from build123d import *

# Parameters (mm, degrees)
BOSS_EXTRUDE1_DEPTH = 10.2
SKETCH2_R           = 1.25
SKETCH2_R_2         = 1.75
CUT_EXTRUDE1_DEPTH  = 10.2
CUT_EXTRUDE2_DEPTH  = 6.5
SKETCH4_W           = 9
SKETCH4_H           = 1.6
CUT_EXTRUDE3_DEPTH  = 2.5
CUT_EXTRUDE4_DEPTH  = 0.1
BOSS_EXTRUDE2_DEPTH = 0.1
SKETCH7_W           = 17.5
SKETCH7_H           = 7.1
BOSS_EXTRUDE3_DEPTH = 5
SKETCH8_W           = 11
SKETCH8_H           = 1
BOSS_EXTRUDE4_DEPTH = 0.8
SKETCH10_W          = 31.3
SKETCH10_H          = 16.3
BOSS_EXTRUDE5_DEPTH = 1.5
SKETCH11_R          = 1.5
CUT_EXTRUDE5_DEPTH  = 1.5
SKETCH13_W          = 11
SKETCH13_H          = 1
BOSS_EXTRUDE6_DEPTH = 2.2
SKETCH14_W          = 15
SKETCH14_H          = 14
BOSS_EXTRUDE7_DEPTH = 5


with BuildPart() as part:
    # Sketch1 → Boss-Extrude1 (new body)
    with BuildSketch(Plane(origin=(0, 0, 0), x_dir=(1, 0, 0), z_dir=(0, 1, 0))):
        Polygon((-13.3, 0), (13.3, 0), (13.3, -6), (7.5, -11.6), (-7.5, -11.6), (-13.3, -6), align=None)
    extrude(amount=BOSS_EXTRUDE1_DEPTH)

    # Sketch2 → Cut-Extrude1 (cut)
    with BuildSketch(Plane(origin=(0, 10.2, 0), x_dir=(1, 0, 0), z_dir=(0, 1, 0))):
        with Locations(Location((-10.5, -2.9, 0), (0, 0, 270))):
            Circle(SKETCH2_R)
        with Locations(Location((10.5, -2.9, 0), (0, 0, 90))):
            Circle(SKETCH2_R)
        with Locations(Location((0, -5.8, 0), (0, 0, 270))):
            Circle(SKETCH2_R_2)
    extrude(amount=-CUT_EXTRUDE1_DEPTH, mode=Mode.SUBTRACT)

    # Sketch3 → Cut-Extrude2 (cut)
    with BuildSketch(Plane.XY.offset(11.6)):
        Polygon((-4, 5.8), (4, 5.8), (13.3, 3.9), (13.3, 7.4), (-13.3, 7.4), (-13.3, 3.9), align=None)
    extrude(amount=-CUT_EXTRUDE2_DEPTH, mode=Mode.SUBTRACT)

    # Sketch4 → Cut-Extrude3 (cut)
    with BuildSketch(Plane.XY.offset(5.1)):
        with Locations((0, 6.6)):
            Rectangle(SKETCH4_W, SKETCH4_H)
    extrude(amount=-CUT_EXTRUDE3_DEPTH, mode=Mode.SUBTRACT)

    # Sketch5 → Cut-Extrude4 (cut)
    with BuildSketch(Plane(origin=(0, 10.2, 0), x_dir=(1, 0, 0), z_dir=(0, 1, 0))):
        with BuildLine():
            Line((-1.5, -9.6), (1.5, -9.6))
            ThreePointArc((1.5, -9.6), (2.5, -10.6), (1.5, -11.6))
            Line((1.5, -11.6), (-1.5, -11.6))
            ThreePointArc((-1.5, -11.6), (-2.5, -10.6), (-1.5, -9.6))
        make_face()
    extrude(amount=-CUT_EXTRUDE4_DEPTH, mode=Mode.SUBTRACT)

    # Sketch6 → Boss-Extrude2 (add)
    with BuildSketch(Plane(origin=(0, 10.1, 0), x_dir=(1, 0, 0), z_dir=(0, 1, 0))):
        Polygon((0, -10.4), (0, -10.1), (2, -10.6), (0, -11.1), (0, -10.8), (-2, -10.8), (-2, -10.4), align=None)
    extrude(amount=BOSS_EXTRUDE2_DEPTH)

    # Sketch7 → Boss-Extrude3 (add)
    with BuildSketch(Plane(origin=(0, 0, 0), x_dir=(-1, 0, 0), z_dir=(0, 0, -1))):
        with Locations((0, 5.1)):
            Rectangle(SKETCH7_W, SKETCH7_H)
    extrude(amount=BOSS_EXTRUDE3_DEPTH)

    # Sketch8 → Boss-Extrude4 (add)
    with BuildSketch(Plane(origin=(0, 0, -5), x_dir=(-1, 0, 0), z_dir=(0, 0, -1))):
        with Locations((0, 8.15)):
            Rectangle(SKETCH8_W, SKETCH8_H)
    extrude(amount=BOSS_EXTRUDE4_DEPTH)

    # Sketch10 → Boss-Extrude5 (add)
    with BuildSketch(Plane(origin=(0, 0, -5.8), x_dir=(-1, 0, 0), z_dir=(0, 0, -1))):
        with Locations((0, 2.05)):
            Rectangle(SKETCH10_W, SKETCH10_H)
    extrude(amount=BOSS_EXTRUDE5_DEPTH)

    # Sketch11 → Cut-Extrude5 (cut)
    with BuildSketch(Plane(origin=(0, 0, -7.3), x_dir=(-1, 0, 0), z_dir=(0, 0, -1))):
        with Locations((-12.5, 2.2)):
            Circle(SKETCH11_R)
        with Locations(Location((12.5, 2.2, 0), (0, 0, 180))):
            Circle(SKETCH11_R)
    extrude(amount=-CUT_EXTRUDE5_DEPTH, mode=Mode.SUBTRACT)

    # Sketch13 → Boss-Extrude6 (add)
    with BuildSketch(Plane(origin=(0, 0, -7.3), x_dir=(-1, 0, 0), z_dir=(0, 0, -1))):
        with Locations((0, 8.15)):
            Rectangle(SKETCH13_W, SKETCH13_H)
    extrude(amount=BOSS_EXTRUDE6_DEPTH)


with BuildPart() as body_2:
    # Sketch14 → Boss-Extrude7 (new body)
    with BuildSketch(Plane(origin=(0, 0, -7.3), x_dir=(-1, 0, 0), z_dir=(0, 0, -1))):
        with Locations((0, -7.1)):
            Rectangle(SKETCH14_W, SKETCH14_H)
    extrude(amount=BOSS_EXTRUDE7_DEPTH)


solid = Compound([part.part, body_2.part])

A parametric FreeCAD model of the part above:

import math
import FreeCAD as App
import Part
import Sketcher
from FreeCAD import Vector

doc = App.newDocument("Part")
body = doc.addObject("PartDesign::Body", "Body")

# Sketch on XZ plane
sketch1 = doc.addObject("Sketcher::SketchObject", "Sketch")
body.addObject(sketch1)
sketch1.AttachmentSupport = (doc.XZ_Plane, [""])
sketch1.MapMode = "FlatFace"
sketch1.addGeometry([
    Part.LineSegment(Vector(13.3, 0, 0), Vector(-13.3, 0, 0)),  # 0
    Part.LineSegment(Vector(-13.3, 0, 0), Vector(-13.3, 6, 0)),  # 1
    Part.LineSegment(Vector(-13.3, 6, 0), Vector(-7.5, 11.6, 0)),  # 2
    Part.LineSegment(Vector(-7.5, 11.6, 0), Vector(7.5, 11.6, 0)),  # 3
    Part.LineSegment(Vector(7.5, 11.6, 0), Vector(13.3, 6, 0)),  # 4
    Part.LineSegment(Vector(13.3, 6, 0), Vector(13.3, 0, 0)),  # 5
], False)
sketch1.addConstraint([
    Sketcher.Constraint("Coincident", 0, 2, 1, 1),
    Sketcher.Constraint("Coincident", 1, 2, 2, 1),
    Sketcher.Constraint("Coincident", 2, 2, 3, 1),
    Sketcher.Constraint("Coincident", 3, 2, 4, 1),
    Sketcher.Constraint("Coincident", 4, 2, 5, 1),
    Sketcher.Constraint("Coincident", 5, 2, 0, 1),
    Sketcher.Constraint("Horizontal", 0),
    Sketcher.Constraint("Vertical", 1),
    Sketcher.Constraint("Horizontal", 3),
    Sketcher.Constraint("Vertical", 5),
    Sketcher.Constraint("Symmetric", 0, 2, 5, 2, -1, 1),
    Sketcher.Constraint("Horizontal", 1, 2, 4, 2),
    Sketcher.Constraint("Equal", 2, 4),
    Sketcher.Constraint("DistanceX", 3, 1, 3, 2, 15.0),
    Sketcher.Constraint("DistanceY", 1, 1, 1, 2, 6.0),
    Sketcher.Constraint("DistanceX", 0, 2, 0, 1, 26.6),
    Sketcher.Constraint("DistanceY", -1, 1, 2, 2, 11.6),
])
pad1 = doc.addObject("PartDesign::Pad", "Pad")
body.addObject(pad1)
pad1.Profile = sketch1
pad1.Length = 10.2
pad1.Reversed = True

# Sketch on XZ plane
sketch2 = doc.addObject("Sketcher::SketchObject", "Sketch001")
body.addObject(sketch2)
sketch2.AttachmentSupport = (doc.XZ_Plane, [""])
sketch2.MapMode = "FlatFace"
sketch2.AttachmentOffset = App.Placement(Vector(0, 0, -10.2), App.Rotation())
sketch2.addGeometry([
    Part.Circle(Vector(-10.5, 2.9, 0), Vector(0, 0, 1), 1.25),
    Part.Circle(Vector(10.5, 2.9, 0), Vector(0, 0, 1), 1.25),
    Part.Circle(Vector(0, 5.8, 0), Vector(0, 0, 1), 1.75),
], False)
sketch2.addConstraint([
    Sketcher.Constraint("Equal", 0, 1),
    Sketcher.Constraint("Symmetric", 0, 3, 1, 3, -2),
    Sketcher.Constraint("PointOnObject", 2, 3, -2),
    Sketcher.Constraint("Diameter", 0, 2.5),
    Sketcher.Constraint("Diameter", 2, 3.5),
    Sketcher.Constraint("DistanceX", 0, 3, 1, 3, 21.0),
    Sketcher.Constraint("DistanceY", -1, 1, 0, 3, 2.9),
    Sketcher.Constraint("DistanceY", -1, 1, 2, 3, 5.8),
])
pocket1 = doc.addObject("PartDesign::Pocket", "Pocket")
body.addObject(pocket1)
pocket1.Profile = sketch2
pocket1.Length = 10.2
pocket1.Reversed = True

# Sketch on XY plane
sketch3 = doc.addObject("Sketcher::SketchObject", "Sketch002")
body.addObject(sketch3)
sketch3.AttachmentSupport = (doc.XY_Plane, [""])
sketch3.MapMode = "FlatFace"
sketch3.AttachmentOffset = App.Placement(Vector(0, 0, 11.6), App.Rotation())
sketch3.addGeometry([
    Part.LineSegment(Vector(-4, 5.8, 0), Vector(4, 5.8, 0)),  # 0
    Part.LineSegment(Vector(4, 5.8, 0), Vector(13.3, 3.9, 0)),  # 1
    Part.LineSegment(Vector(13.3, 3.9, 0), Vector(13.3, 7.4, 0)),  # 2
    Part.LineSegment(Vector(13.3, 7.4, 0), Vector(-13.3, 7.4, 0)),  # 3
    Part.LineSegment(Vector(-13.3, 7.4, 0), Vector(-13.3, 3.9, 0)),  # 4
    Part.LineSegment(Vector(-13.3, 3.9, 0), Vector(-4, 5.8, 0)),  # 5
], False)
sketch3.addConstraint([
    Sketcher.Constraint("Coincident", 0, 2, 1, 1),
    Sketcher.Constraint("Coincident", 1, 2, 2, 1),
    Sketcher.Constraint("Coincident", 2, 2, 3, 1),
    Sketcher.Constraint("Coincident", 3, 2, 4, 1),
    Sketcher.Constraint("Coincident", 4, 2, 5, 1),
    Sketcher.Constraint("Coincident", 5, 2, 0, 1),
    Sketcher.Constraint("Horizontal", 0),
    Sketcher.Constraint("Vertical", 2),
    Sketcher.Constraint("Horizontal", 3),
    Sketcher.Constraint("Vertical", 4),
    Sketcher.Constraint("Symmetric", 1, 2, 4, 2, -2),
    Sketcher.Constraint("Equal", 1, 5),
    Sketcher.Constraint("DistanceX", 0, 1, 0, 2, 8.0),
    Sketcher.Constraint("DistanceX", 3, 2, 3, 1, 26.6),
    Sketcher.Constraint("DistanceY", 2, 1, 2, 2, 3.5),
    Sketcher.Constraint("DistanceY", -1, 1, 0, 2, 5.8),
    Sketcher.Constraint("DistanceY", -1, 1, 1, 2, 3.9),
])
pocket2 = doc.addObject("PartDesign::Pocket", "Pocket001")
body.addObject(pocket2)
pocket2.Profile = sketch3
pocket2.Length = 6.5

# Sketch on XY plane
sketch4 = doc.addObject("Sketcher::SketchObject", "Sketch003")
body.addObject(sketch4)
sketch4.AttachmentSupport = (doc.XY_Plane, [""])
sketch4.MapMode = "FlatFace"
sketch4.AttachmentOffset = App.Placement(Vector(0, 0, 5.1), App.Rotation())
sketch4.addGeometry([
    Part.LineSegment(Vector(-4.5, 7.4, 0), Vector(-4.5, 5.8, 0)),
    Part.LineSegment(Vector(-4.5, 5.8, 0), Vector(4.5, 5.8, 0)),
    Part.LineSegment(Vector(4.5, 5.8, 0), Vector(4.5, 7.4, 0)),
    Part.LineSegment(Vector(4.5, 7.4, 0), Vector(-4.5, 7.4, 0)),
], False)
sketch4.addConstraint([
    Sketcher.Constraint("Coincident", 0, 2, 1, 1),
    Sketcher.Constraint("Coincident", 1, 2, 2, 1),
    Sketcher.Constraint("Coincident", 2, 2, 3, 1),
    Sketcher.Constraint("Coincident", 3, 2, 0, 1),
    Sketcher.Constraint("Vertical", 0),
    Sketcher.Constraint("Horizontal", 1),
    Sketcher.Constraint("Vertical", 2),
    Sketcher.Constraint("Horizontal", 3),
    Sketcher.Constraint("DistanceX", 1, 1, 1, 2, 9.0),
    Sketcher.Constraint("DistanceY", 0, 2, 0, 1, 1.6),
    Sketcher.Constraint("DistanceX", 0, 2, -1, 1, 4.5),
    Sketcher.Constraint("DistanceY", -1, 1, 0, 2, 5.8),
])
pocket3 = doc.addObject("PartDesign::Pocket", "Pocket002")
body.addObject(pocket3)
pocket3.Profile = sketch4
pocket3.Length = 2.5

# Sketch on XZ plane
sketch5 = doc.addObject("Sketcher::SketchObject", "Sketch004")
body.addObject(sketch5)
sketch5.AttachmentSupport = (doc.XZ_Plane, [""])
sketch5.MapMode = "FlatFace"
sketch5.AttachmentOffset = App.Placement(Vector(0, 0, -10.2), App.Rotation())
sketch5.addGeometry([
    Part.LineSegment(Vector(1.5, 9.6, 0), Vector(-1.5, 9.6, 0)),
    Part.ArcOfCircle(Part.Circle(Vector(-1.5, 10.6, 0), Vector(0, 0, 1), 1), math.radians(90), math.radians(270)),
    Part.LineSegment(Vector(-1.5, 11.6, 0), Vector(1.5, 11.6, 0)),
    Part.ArcOfCircle(Part.Circle(Vector(1.5, 10.6, 0), Vector(0, 0, 1), 1), math.radians(-90), math.radians(90)),
], False)
sketch5.addConstraint([
    Sketcher.Constraint("Tangent", 0, 2, 1, 2),
    Sketcher.Constraint("Tangent", 1, 1, 2, 1),
    Sketcher.Constraint("Tangent", 2, 2, 3, 2),
    Sketcher.Constraint("Tangent", 3, 1, 0, 1),
    Sketcher.Constraint("Horizontal", 0),
    Sketcher.Constraint("Horizontal", 2),
    Sketcher.Constraint("Radius", 1, 1.0),
    Sketcher.Constraint("DistanceX", 0, 2, 0, 1, 3.0),
    Sketcher.Constraint("DistanceX", 1, 3, -1, 1, 1.5),
    Sketcher.Constraint("DistanceY", -1, 1, 1, 3, 10.6),
])
pocket4 = doc.addObject("PartDesign::Pocket", "Pocket003")
body.addObject(pocket4)
pocket4.Profile = sketch5
pocket4.Length = 0.1
pocket4.Reversed = True

# Sketch on XZ plane
sketch6 = doc.addObject("Sketcher::SketchObject", "Sketch005")
body.addObject(sketch6)
sketch6.AttachmentSupport = (doc.XZ_Plane, [""])
sketch6.MapMode = "FlatFace"
sketch6.AttachmentOffset = App.Placement(Vector(0, 0, -10.1), App.Rotation())
sketch6.addGeometry([
    Part.LineSegment(Vector(0, 10.1, 0), Vector(0, 10.4, 0)),  # 0
    Part.LineSegment(Vector(0, 10.4, 0), Vector(-2, 10.4, 0)),  # 1
    Part.LineSegment(Vector(-2, 10.4, 0), Vector(-2, 10.8, 0)),  # 2
    Part.LineSegment(Vector(-2, 10.8, 0), Vector(0, 10.8, 0)),  # 3
    Part.LineSegment(Vector(0, 10.8, 0), Vector(0, 11.1, 0)),  # 4
    Part.LineSegment(Vector(0, 11.1, 0), Vector(2, 10.6, 0)),  # 5
    Part.LineSegment(Vector(2, 10.6, 0), Vector(0, 10.1, 0)),  # 6
], False)
sketch6.addConstraint([
    Sketcher.Constraint("Coincident", 0, 2, 1, 1),
    Sketcher.Constraint("Coincident", 1, 2, 2, 1),
    Sketcher.Constraint("Coincident", 2, 2, 3, 1),
    Sketcher.Constraint("Coincident", 3, 2, 4, 1),
    Sketcher.Constraint("Coincident", 4, 2, 5, 1),
    Sketcher.Constraint("Coincident", 5, 2, 6, 1),
    Sketcher.Constraint("Coincident", 6, 2, 0, 1),
    Sketcher.Constraint("Vertical", 0),
    Sketcher.Constraint("Horizontal", 1),
    Sketcher.Constraint("Vertical", 2),
    Sketcher.Constraint("Horizontal", 3),
    Sketcher.Constraint("Vertical", 4),
    Sketcher.Constraint("PointOnObject", 0, 2, -2),
    Sketcher.Constraint("PointOnObject", 3, 2, -2),
    Sketcher.Constraint("Equal", 0, 4),
    Sketcher.Constraint("Equal", 5, 6),
    Sketcher.Constraint("DistanceX", 1, 2, 1, 1, 2.0),
    Sketcher.Constraint("DistanceY", 0, 1, 0, 2, 0.3),
    Sketcher.Constraint("DistanceY", 2, 1, 2, 2, 0.4),
    Sketcher.Constraint("DistanceX", -1, 1, 5, 2, 2.0),
    Sketcher.Constraint("DistanceY", -1, 1, 0, 2, 10.4),
])
pad2 = doc.addObject("PartDesign::Pad", "Pad001")
body.addObject(pad2)
pad2.Profile = sketch6
pad2.Length = 0.1
pad2.Reversed = True

# Sketch on XY plane
sketch7 = doc.addObject("Sketcher::SketchObject", "Sketch006")
body.addObject(sketch7)
sketch7.AttachmentSupport = (doc.XY_Plane, [""])
sketch7.MapMode = "FlatFace"
sketch7.addGeometry([
    Part.LineSegment(Vector(8.75, 8.65, 0), Vector(8.75, 1.55, 0)),
    Part.LineSegment(Vector(8.75, 1.55, 0), Vector(-8.75, 1.55, 0)),
    Part.LineSegment(Vector(-8.75, 1.55, 0), Vector(-8.75, 8.65, 0)),
    Part.LineSegment(Vector(-8.75, 8.65, 0), Vector(8.75, 8.65, 0)),
], False)
sketch7.addConstraint([
    Sketcher.Constraint("Coincident", 0, 2, 1, 1),
    Sketcher.Constraint("Coincident", 1, 2, 2, 1),
    Sketcher.Constraint("Coincident", 2, 2, 3, 1),
    Sketcher.Constraint("Coincident", 3, 2, 0, 1),
    Sketcher.Constraint("Vertical", 0),
    Sketcher.Constraint("Horizontal", 1),
    Sketcher.Constraint("Vertical", 2),
    Sketcher.Constraint("Horizontal", 3),
    Sketcher.Constraint("DistanceX", 1, 2, 1, 1, 17.5),
    Sketcher.Constraint("DistanceY", 0, 2, 0, 1, 7.1),
    Sketcher.Constraint("DistanceX", -1, 1, 0, 2, 8.75),
    Sketcher.Constraint("DistanceY", -1, 1, 0, 2, 1.55),
])
pad3 = doc.addObject("PartDesign::Pad", "Pad002")
body.addObject(pad3)
pad3.Profile = sketch7
pad3.Length = 5
pad3.Reversed = True

# Sketch on XY plane
sketch8 = doc.addObject("Sketcher::SketchObject", "Sketch007")
body.addObject(sketch8)
sketch8.AttachmentSupport = (doc.XY_Plane, [""])
sketch8.MapMode = "FlatFace"
sketch8.AttachmentOffset = App.Placement(Vector(0, 0, -5), App.Rotation())
sketch8.addGeometry([
    Part.LineSegment(Vector(5.5, 8.65, 0), Vector(5.5, 7.65, 0)),
    Part.LineSegment(Vector(5.5, 7.65, 0), Vector(-5.5, 7.65, 0)),
    Part.LineSegment(Vector(-5.5, 7.65, 0), Vector(-5.5, 8.65, 0)),
    Part.LineSegment(Vector(-5.5, 8.65, 0), Vector(5.5, 8.65, 0)),
], False)
sketch8.addConstraint([
    Sketcher.Constraint("Coincident", 0, 2, 1, 1),
    Sketcher.Constraint("Coincident", 1, 2, 2, 1),
    Sketcher.Constraint("Coincident", 2, 2, 3, 1),
    Sketcher.Constraint("Coincident", 3, 2, 0, 1),
    Sketcher.Constraint("Vertical", 0),
    Sketcher.Constraint("Horizontal", 1),
    Sketcher.Constraint("Vertical", 2),
    Sketcher.Constraint("Horizontal", 3),
    Sketcher.Constraint("DistanceX", 1, 2, 1, 1, 11.0),
    Sketcher.Constraint("DistanceY", 0, 2, 0, 1, 1.0),
    Sketcher.Constraint("DistanceX", -1, 1, 0, 2, 5.5),
    Sketcher.Constraint("DistanceY", -1, 1, 0, 2, 7.65),
])
pad4 = doc.addObject("PartDesign::Pad", "Pad003")
body.addObject(pad4)
pad4.Profile = sketch8
pad4.Length = 0.8
pad4.Reversed = True

# Sketch on XY plane
sketch9 = doc.addObject("Sketcher::SketchObject", "Sketch008")
body.addObject(sketch9)
sketch9.AttachmentSupport = (doc.XY_Plane, [""])
sketch9.MapMode = "FlatFace"
sketch9.AttachmentOffset = App.Placement(Vector(0, 0, -5.8), App.Rotation())
sketch9.addGeometry([
    Part.LineSegment(Vector(15.65, 10.2, 0), Vector(15.65, -6.1, 0)),
    Part.LineSegment(Vector(15.65, -6.1, 0), Vector(-15.65, -6.1, 0)),
    Part.LineSegment(Vector(-15.65, -6.1, 0), Vector(-15.65, 10.2, 0)),
    Part.LineSegment(Vector(-15.65, 10.2, 0), Vector(15.65, 10.2, 0)),
], False)
sketch9.addConstraint([
    Sketcher.Constraint("Coincident", 0, 2, 1, 1),
    Sketcher.Constraint("Coincident", 1, 2, 2, 1),
    Sketcher.Constraint("Coincident", 2, 2, 3, 1),
    Sketcher.Constraint("Coincident", 3, 2, 0, 1),
    Sketcher.Constraint("Vertical", 0),
    Sketcher.Constraint("Horizontal", 1),
    Sketcher.Constraint("Vertical", 2),
    Sketcher.Constraint("Horizontal", 3),
    Sketcher.Constraint("DistanceX", 1, 2, 1, 1, 31.3),
    Sketcher.Constraint("DistanceY", 0, 2, 0, 1, 16.3),
    Sketcher.Constraint("DistanceY", 0, 2, -1, 1, 6.1),
    Sketcher.Constraint("DistanceX", -1, 1, 0, 2, 15.65),
])
pad5 = doc.addObject("PartDesign::Pad", "Pad004")
body.addObject(pad5)
pad5.Profile = sketch9
pad5.Length = 1.5
pad5.Reversed = True

# Sketch on XY plane
sketch10 = doc.addObject("Sketcher::SketchObject", "Sketch009")
body.addObject(sketch10)
sketch10.AttachmentSupport = (doc.XY_Plane, [""])
sketch10.MapMode = "FlatFace"
sketch10.AttachmentOffset = App.Placement(Vector(0, 0, -7.3), App.Rotation())
sketch10.addGeometry([
    Part.Circle(Vector(12.5, 2.2, 0), Vector(0, 0, 1), 1.5),
    Part.Circle(Vector(-12.5, 2.2, 0), Vector(0, 0, 1), 1.5),
], False)
sketch10.addConstraint([
    Sketcher.Constraint("Equal", 0, 1),
    Sketcher.Constraint("Symmetric", 0, 3, 1, 3, -2),
    Sketcher.Constraint("Diameter", 0, 3.0),
    Sketcher.Constraint("DistanceX", 1, 3, 0, 3, 25.0),
    Sketcher.Constraint("DistanceY", -1, 1, 0, 3, 2.2),
])
pocket5 = doc.addObject("PartDesign::Pocket", "Pocket004")
body.addObject(pocket5)
pocket5.Profile = sketch10
pocket5.Length = 1.5
pocket5.Reversed = True

# Sketch on XY plane
sketch11 = doc.addObject("Sketcher::SketchObject", "Sketch010")
body.addObject(sketch11)
sketch11.AttachmentSupport = (doc.XY_Plane, [""])
sketch11.MapMode = "FlatFace"
sketch11.AttachmentOffset = App.Placement(Vector(0, 0, -7.3), App.Rotation())
sketch11.addGeometry([
    Part.LineSegment(Vector(5.5, 8.65, 0), Vector(5.5, 7.65, 0)),
    Part.LineSegment(Vector(5.5, 7.65, 0), Vector(-5.5, 7.65, 0)),
    Part.LineSegment(Vector(-5.5, 7.65, 0), Vector(-5.5, 8.65, 0)),
    Part.LineSegment(Vector(-5.5, 8.65, 0), Vector(5.5, 8.65, 0)),
], False)
sketch11.addConstraint([
    Sketcher.Constraint("Coincident", 0, 2, 1, 1),
    Sketcher.Constraint("Coincident", 1, 2, 2, 1),
    Sketcher.Constraint("Coincident", 2, 2, 3, 1),
    Sketcher.Constraint("Coincident", 3, 2, 0, 1),
    Sketcher.Constraint("Vertical", 0),
    Sketcher.Constraint("Horizontal", 1),
    Sketcher.Constraint("Vertical", 2),
    Sketcher.Constraint("Horizontal", 3),
    Sketcher.Constraint("DistanceX", 1, 2, 1, 1, 11.0),
    Sketcher.Constraint("DistanceY", 0, 2, 0, 1, 1.0),
    Sketcher.Constraint("DistanceX", -1, 1, 0, 2, 5.5),
    Sketcher.Constraint("DistanceY", -1, 1, 0, 2, 7.65),
])
pad6 = doc.addObject("PartDesign::Pad", "Pad005")
body.addObject(pad6)
pad6.Profile = sketch11
pad6.Length = 2.2
pad6.Reversed = True
body2 = doc.addObject("PartDesign::Body", "Body001")

# Sketch on XY plane
sketch12 = doc.addObject("Sketcher::SketchObject", "Sketch011")
body2.addObject(sketch12)
sketch12.AttachmentSupport = (doc.getObject("XY_Plane001"), [""])
sketch12.MapMode = "FlatFace"
sketch12.AttachmentOffset = App.Placement(Vector(0, 0, -7.3), App.Rotation())
sketch12.addGeometry([
    Part.LineSegment(Vector(7.5, -0.1, 0), Vector(7.5, -14.1, 0)),
    Part.LineSegment(Vector(7.5, -14.1, 0), Vector(-7.5, -14.1, 0)),
    Part.LineSegment(Vector(-7.5, -14.1, 0), Vector(-7.5, -0.1, 0)),
    Part.LineSegment(Vector(-7.5, -0.1, 0), Vector(7.5, -0.1, 0)),
], False)
sketch12.addConstraint([
    Sketcher.Constraint("Coincident", 0, 2, 1, 1),
    Sketcher.Constraint("Coincident", 1, 2, 2, 1),
    Sketcher.Constraint("Coincident", 2, 2, 3, 1),
    Sketcher.Constraint("Coincident", 3, 2, 0, 1),
    Sketcher.Constraint("Vertical", 0),
    Sketcher.Constraint("Horizontal", 1),
    Sketcher.Constraint("Vertical", 2),
    Sketcher.Constraint("Horizontal", 3),
    Sketcher.Constraint("DistanceX", 1, 2, 1, 1, 15.0),
    Sketcher.Constraint("DistanceY", 0, 2, 0, 1, 14.0),
    Sketcher.Constraint("DistanceX", -1, 1, 0, 2, 7.5),
    Sketcher.Constraint("DistanceY", 0, 2, -1, 1, 14.1),
])
pad7 = doc.addObject("PartDesign::Pad", "Pad006")
body2.addObject(pad7)
pad7.Profile = sketch12
pad7.Length = 5
pad7.Reversed = True

doc.recompute()
